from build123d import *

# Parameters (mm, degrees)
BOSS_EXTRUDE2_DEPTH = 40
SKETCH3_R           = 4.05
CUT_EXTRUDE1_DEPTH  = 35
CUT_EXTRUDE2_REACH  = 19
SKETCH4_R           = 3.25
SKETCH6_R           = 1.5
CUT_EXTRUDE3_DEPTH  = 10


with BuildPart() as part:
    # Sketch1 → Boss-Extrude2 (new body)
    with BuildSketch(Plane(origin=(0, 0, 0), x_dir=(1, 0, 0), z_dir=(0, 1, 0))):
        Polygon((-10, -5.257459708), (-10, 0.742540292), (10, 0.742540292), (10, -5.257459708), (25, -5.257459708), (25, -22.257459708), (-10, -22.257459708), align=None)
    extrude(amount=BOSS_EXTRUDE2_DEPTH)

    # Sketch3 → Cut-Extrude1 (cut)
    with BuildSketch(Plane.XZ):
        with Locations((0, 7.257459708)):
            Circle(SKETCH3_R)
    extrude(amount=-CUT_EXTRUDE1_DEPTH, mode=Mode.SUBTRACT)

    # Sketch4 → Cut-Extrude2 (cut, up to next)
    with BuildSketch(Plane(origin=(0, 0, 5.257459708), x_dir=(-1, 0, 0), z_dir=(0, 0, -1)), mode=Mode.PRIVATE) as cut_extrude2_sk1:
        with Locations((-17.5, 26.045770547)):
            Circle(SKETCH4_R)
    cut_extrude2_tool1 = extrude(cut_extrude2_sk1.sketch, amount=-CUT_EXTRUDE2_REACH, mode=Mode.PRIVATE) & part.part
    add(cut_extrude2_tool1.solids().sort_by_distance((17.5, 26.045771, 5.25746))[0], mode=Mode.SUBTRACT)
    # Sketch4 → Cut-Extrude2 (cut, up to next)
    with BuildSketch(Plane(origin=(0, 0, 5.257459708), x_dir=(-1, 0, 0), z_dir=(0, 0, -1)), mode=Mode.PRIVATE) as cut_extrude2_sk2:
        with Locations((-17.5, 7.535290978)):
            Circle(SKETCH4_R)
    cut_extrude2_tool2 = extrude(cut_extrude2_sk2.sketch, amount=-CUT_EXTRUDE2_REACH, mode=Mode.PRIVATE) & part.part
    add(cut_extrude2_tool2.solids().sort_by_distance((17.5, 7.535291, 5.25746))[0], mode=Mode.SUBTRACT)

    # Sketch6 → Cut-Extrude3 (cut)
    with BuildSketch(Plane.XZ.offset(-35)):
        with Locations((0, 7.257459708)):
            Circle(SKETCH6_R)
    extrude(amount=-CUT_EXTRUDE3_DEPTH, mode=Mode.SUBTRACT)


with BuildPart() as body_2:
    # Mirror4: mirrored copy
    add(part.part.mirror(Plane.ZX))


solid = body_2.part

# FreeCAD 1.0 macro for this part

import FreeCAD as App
import Part
import Sketcher

V = App.Vector

doc = App.newDocument("Part")
body = doc.addObject("PartDesign::Body", "Body")

sketch1 = body.newObject("Sketcher::SketchObject", "Sketch")
sketch1.AttachmentSupport = (doc.getObject("XZ_Plane"), [""])
sketch1.MapMode = "FlatFace"
sketch1.addGeometry([
    Part.LineSegment(V(-10, -1, 0), V(-10, 22, 0)),
    Part.LineSegment(V(-10, 22, 0), V(25, 22, 0)),
    Part.LineSegment(V(25, 22, 0), V(25, 5, 0)),
    Part.LineSegment(V(25, 5, 0), V(10, 5, 0)),
    Part.LineSegment(V(10, 5, 0), V(10, -1, 0)),
    Part.LineSegment(V(10, -1, 0), V(-10, -1, 0)),
], False)
sketch1.addConstraint([
    Sketcher.Constraint("Coincident", 0, 2, 1, 1),
    Sketcher.Constraint("Coincident", 1, 2, 2, 1),
    Sketcher.Constraint("Coincident", 2, 2, 3, 1),
    Sketcher.Constraint("Coincident", 3, 2, 4, 1),
    Sketcher.Constraint("Coincident", 4, 2, 5, 1),
    Sketcher.Constraint("Coincident", 5, 2, 0, 1),
    Sketcher.Constraint("Vertical", 0),
    Sketcher.Constraint("Horizontal", 1),
    Sketcher.Constraint("Vertical", 2),
    Sketcher.Constraint("Horizontal", 3),
    Sketcher.Constraint("Vertical", 4),
    Sketcher.Constraint("Horizontal", 5),
    Sketcher.Constraint("DistanceX", 1, 1, 1, 2, 35.0),
    Sketcher.Constraint("DistanceX", 3, 2, 3, 1, 15.0),
    Sketcher.Constraint("DistanceY", 0, 1, 0, 2, 23.0),
    Sketcher.Constraint("DistanceY", 2, 2, 2, 1, 17.0),
    Sketcher.Constraint("DistanceX", 0, 2, -1, 1, 10.0),
    Sketcher.Constraint("DistanceY", -1, 1, 0, 2, 22.25746),
])
pad1 = body.newObject("PartDesign::Pad", "Pad")
pad1.Profile = sketch1
pad1.Length = 40
pad1.Reversed = True

sketch2 = body.newObject("Sketcher::SketchObject", "Sketch001")
sketch2.AttachmentSupport = (doc.getObject("XZ_Plane"), [""])
sketch2.MapMode = "FlatFace"
sketch2.addGeometry(Part.Circle(V(0, 7.3, 0), V(0, 0, 1), 4), False)
sketch2.addConstraint([
    Sketcher.Constraint("PointOnObject", 0, 3, -2),
    Sketcher.Constraint("Diameter", 0, 8.1),
    Sketcher.Constraint("DistanceY", -1, 1, 0, 3, 7.25746),
])
pocket1 = body.newObject("PartDesign::Pocket", "Pocket")
pocket1.Profile = sketch2
pocket1.Length = 35

sketch3 = body.newObject("Sketcher::SketchObject", "Sketch002")
sketch3.AttachmentSupport = (doc.getObject("XY_Plane"), [""])
sketch3.MapMode = "FlatFace"
sketch3.AttachmentOffset = App.Placement(V(0, 0, 5.25746), App.Rotation())
sketch3.addGeometry(Part.Circle(V(17.5, 26, 0), V(0, 0, 1), 3.2), False)
sketch3.addConstraint([
    Sketcher.Constraint("Diameter", 0, 6.5),
    Sketcher.Constraint("DistanceX", -1, 1, 0, 3, 17.5),
    Sketcher.Constraint("DistanceY", -1, 1, 0, 3, 26.045771),
])
pocket2 = body.newObject("PartDesign::Pocket", "Pocket001")
pocket2.Profile = sketch3
pocket2.Type = "UpToFirst"
pocket2.Reversed = True

sketch4 = body.newObject("Sketcher::SketchObject", "Sketch003")
sketch4.AttachmentSupport = (doc.getObject("XY_Plane"), [""])
sketch4.MapMode = "FlatFace"
sketch4.AttachmentOffset = App.Placement(V(0, 0, 5.25746), App.Rotation())
sketch4.addGeometry(Part.Circle(V(17.5, 7.5, 0), V(0, 0, 1), 3.2), False)
sketch4.addConstraint([
    Sketcher.Constraint("Diameter", 0, 6.5),
    Sketcher.Constraint("DistanceX", -1, 1, 0, 3, 17.5),
    Sketcher.Constraint("DistanceY", -1, 1, 0, 3, 7.535291),
])
pocket3 = body.newObject("PartDesign::Pocket", "Pocket002")
pocket3.Profile = sketch4
pocket3.Type = "UpToFirst"
pocket3.Reversed = True

sketch5 = body.newObject("Sketcher::SketchObject", "Sketch004")
sketch5.AttachmentSupport = (doc.getObject("XZ_Plane"), [""])
sketch5.MapMode = "FlatFace"
sketch5.AttachmentOffset = App.Placement(V(0, 0, -35), App.Rotation())
sketch5.addGeometry(Part.Circle(V(0, 7.3, 0), V(0, 0, 1), 1.5), False)
sketch5.addConstraint([
    Sketcher.Constraint("PointOnObject", 0, 3, -2),
    Sketcher.Constraint("Diameter", 0, 3.0),
    Sketcher.Constraint("DistanceY", -1, 1, 0, 3, 7.25746),
])
pocket4 = body.newObject("PartDesign::Pocket", "Pocket003")
pocket4.Profile = sketch5
pocket4.Length = 10
body2 = doc.addObject("PartDesign::Body", "Body001")
doc.recompute()

mirroring = doc.addObject("Part::Mirroring", "Mirroring")
mirroring.Source = body
mirroring.Base = V(0, 0, 0)
mirroring.Normal = V(0, 1, 0)
body2.BaseFeature = mirroring
doc.recompute()
body.Visibility = False
mirroring.Visibility = False

doc.recompute()
